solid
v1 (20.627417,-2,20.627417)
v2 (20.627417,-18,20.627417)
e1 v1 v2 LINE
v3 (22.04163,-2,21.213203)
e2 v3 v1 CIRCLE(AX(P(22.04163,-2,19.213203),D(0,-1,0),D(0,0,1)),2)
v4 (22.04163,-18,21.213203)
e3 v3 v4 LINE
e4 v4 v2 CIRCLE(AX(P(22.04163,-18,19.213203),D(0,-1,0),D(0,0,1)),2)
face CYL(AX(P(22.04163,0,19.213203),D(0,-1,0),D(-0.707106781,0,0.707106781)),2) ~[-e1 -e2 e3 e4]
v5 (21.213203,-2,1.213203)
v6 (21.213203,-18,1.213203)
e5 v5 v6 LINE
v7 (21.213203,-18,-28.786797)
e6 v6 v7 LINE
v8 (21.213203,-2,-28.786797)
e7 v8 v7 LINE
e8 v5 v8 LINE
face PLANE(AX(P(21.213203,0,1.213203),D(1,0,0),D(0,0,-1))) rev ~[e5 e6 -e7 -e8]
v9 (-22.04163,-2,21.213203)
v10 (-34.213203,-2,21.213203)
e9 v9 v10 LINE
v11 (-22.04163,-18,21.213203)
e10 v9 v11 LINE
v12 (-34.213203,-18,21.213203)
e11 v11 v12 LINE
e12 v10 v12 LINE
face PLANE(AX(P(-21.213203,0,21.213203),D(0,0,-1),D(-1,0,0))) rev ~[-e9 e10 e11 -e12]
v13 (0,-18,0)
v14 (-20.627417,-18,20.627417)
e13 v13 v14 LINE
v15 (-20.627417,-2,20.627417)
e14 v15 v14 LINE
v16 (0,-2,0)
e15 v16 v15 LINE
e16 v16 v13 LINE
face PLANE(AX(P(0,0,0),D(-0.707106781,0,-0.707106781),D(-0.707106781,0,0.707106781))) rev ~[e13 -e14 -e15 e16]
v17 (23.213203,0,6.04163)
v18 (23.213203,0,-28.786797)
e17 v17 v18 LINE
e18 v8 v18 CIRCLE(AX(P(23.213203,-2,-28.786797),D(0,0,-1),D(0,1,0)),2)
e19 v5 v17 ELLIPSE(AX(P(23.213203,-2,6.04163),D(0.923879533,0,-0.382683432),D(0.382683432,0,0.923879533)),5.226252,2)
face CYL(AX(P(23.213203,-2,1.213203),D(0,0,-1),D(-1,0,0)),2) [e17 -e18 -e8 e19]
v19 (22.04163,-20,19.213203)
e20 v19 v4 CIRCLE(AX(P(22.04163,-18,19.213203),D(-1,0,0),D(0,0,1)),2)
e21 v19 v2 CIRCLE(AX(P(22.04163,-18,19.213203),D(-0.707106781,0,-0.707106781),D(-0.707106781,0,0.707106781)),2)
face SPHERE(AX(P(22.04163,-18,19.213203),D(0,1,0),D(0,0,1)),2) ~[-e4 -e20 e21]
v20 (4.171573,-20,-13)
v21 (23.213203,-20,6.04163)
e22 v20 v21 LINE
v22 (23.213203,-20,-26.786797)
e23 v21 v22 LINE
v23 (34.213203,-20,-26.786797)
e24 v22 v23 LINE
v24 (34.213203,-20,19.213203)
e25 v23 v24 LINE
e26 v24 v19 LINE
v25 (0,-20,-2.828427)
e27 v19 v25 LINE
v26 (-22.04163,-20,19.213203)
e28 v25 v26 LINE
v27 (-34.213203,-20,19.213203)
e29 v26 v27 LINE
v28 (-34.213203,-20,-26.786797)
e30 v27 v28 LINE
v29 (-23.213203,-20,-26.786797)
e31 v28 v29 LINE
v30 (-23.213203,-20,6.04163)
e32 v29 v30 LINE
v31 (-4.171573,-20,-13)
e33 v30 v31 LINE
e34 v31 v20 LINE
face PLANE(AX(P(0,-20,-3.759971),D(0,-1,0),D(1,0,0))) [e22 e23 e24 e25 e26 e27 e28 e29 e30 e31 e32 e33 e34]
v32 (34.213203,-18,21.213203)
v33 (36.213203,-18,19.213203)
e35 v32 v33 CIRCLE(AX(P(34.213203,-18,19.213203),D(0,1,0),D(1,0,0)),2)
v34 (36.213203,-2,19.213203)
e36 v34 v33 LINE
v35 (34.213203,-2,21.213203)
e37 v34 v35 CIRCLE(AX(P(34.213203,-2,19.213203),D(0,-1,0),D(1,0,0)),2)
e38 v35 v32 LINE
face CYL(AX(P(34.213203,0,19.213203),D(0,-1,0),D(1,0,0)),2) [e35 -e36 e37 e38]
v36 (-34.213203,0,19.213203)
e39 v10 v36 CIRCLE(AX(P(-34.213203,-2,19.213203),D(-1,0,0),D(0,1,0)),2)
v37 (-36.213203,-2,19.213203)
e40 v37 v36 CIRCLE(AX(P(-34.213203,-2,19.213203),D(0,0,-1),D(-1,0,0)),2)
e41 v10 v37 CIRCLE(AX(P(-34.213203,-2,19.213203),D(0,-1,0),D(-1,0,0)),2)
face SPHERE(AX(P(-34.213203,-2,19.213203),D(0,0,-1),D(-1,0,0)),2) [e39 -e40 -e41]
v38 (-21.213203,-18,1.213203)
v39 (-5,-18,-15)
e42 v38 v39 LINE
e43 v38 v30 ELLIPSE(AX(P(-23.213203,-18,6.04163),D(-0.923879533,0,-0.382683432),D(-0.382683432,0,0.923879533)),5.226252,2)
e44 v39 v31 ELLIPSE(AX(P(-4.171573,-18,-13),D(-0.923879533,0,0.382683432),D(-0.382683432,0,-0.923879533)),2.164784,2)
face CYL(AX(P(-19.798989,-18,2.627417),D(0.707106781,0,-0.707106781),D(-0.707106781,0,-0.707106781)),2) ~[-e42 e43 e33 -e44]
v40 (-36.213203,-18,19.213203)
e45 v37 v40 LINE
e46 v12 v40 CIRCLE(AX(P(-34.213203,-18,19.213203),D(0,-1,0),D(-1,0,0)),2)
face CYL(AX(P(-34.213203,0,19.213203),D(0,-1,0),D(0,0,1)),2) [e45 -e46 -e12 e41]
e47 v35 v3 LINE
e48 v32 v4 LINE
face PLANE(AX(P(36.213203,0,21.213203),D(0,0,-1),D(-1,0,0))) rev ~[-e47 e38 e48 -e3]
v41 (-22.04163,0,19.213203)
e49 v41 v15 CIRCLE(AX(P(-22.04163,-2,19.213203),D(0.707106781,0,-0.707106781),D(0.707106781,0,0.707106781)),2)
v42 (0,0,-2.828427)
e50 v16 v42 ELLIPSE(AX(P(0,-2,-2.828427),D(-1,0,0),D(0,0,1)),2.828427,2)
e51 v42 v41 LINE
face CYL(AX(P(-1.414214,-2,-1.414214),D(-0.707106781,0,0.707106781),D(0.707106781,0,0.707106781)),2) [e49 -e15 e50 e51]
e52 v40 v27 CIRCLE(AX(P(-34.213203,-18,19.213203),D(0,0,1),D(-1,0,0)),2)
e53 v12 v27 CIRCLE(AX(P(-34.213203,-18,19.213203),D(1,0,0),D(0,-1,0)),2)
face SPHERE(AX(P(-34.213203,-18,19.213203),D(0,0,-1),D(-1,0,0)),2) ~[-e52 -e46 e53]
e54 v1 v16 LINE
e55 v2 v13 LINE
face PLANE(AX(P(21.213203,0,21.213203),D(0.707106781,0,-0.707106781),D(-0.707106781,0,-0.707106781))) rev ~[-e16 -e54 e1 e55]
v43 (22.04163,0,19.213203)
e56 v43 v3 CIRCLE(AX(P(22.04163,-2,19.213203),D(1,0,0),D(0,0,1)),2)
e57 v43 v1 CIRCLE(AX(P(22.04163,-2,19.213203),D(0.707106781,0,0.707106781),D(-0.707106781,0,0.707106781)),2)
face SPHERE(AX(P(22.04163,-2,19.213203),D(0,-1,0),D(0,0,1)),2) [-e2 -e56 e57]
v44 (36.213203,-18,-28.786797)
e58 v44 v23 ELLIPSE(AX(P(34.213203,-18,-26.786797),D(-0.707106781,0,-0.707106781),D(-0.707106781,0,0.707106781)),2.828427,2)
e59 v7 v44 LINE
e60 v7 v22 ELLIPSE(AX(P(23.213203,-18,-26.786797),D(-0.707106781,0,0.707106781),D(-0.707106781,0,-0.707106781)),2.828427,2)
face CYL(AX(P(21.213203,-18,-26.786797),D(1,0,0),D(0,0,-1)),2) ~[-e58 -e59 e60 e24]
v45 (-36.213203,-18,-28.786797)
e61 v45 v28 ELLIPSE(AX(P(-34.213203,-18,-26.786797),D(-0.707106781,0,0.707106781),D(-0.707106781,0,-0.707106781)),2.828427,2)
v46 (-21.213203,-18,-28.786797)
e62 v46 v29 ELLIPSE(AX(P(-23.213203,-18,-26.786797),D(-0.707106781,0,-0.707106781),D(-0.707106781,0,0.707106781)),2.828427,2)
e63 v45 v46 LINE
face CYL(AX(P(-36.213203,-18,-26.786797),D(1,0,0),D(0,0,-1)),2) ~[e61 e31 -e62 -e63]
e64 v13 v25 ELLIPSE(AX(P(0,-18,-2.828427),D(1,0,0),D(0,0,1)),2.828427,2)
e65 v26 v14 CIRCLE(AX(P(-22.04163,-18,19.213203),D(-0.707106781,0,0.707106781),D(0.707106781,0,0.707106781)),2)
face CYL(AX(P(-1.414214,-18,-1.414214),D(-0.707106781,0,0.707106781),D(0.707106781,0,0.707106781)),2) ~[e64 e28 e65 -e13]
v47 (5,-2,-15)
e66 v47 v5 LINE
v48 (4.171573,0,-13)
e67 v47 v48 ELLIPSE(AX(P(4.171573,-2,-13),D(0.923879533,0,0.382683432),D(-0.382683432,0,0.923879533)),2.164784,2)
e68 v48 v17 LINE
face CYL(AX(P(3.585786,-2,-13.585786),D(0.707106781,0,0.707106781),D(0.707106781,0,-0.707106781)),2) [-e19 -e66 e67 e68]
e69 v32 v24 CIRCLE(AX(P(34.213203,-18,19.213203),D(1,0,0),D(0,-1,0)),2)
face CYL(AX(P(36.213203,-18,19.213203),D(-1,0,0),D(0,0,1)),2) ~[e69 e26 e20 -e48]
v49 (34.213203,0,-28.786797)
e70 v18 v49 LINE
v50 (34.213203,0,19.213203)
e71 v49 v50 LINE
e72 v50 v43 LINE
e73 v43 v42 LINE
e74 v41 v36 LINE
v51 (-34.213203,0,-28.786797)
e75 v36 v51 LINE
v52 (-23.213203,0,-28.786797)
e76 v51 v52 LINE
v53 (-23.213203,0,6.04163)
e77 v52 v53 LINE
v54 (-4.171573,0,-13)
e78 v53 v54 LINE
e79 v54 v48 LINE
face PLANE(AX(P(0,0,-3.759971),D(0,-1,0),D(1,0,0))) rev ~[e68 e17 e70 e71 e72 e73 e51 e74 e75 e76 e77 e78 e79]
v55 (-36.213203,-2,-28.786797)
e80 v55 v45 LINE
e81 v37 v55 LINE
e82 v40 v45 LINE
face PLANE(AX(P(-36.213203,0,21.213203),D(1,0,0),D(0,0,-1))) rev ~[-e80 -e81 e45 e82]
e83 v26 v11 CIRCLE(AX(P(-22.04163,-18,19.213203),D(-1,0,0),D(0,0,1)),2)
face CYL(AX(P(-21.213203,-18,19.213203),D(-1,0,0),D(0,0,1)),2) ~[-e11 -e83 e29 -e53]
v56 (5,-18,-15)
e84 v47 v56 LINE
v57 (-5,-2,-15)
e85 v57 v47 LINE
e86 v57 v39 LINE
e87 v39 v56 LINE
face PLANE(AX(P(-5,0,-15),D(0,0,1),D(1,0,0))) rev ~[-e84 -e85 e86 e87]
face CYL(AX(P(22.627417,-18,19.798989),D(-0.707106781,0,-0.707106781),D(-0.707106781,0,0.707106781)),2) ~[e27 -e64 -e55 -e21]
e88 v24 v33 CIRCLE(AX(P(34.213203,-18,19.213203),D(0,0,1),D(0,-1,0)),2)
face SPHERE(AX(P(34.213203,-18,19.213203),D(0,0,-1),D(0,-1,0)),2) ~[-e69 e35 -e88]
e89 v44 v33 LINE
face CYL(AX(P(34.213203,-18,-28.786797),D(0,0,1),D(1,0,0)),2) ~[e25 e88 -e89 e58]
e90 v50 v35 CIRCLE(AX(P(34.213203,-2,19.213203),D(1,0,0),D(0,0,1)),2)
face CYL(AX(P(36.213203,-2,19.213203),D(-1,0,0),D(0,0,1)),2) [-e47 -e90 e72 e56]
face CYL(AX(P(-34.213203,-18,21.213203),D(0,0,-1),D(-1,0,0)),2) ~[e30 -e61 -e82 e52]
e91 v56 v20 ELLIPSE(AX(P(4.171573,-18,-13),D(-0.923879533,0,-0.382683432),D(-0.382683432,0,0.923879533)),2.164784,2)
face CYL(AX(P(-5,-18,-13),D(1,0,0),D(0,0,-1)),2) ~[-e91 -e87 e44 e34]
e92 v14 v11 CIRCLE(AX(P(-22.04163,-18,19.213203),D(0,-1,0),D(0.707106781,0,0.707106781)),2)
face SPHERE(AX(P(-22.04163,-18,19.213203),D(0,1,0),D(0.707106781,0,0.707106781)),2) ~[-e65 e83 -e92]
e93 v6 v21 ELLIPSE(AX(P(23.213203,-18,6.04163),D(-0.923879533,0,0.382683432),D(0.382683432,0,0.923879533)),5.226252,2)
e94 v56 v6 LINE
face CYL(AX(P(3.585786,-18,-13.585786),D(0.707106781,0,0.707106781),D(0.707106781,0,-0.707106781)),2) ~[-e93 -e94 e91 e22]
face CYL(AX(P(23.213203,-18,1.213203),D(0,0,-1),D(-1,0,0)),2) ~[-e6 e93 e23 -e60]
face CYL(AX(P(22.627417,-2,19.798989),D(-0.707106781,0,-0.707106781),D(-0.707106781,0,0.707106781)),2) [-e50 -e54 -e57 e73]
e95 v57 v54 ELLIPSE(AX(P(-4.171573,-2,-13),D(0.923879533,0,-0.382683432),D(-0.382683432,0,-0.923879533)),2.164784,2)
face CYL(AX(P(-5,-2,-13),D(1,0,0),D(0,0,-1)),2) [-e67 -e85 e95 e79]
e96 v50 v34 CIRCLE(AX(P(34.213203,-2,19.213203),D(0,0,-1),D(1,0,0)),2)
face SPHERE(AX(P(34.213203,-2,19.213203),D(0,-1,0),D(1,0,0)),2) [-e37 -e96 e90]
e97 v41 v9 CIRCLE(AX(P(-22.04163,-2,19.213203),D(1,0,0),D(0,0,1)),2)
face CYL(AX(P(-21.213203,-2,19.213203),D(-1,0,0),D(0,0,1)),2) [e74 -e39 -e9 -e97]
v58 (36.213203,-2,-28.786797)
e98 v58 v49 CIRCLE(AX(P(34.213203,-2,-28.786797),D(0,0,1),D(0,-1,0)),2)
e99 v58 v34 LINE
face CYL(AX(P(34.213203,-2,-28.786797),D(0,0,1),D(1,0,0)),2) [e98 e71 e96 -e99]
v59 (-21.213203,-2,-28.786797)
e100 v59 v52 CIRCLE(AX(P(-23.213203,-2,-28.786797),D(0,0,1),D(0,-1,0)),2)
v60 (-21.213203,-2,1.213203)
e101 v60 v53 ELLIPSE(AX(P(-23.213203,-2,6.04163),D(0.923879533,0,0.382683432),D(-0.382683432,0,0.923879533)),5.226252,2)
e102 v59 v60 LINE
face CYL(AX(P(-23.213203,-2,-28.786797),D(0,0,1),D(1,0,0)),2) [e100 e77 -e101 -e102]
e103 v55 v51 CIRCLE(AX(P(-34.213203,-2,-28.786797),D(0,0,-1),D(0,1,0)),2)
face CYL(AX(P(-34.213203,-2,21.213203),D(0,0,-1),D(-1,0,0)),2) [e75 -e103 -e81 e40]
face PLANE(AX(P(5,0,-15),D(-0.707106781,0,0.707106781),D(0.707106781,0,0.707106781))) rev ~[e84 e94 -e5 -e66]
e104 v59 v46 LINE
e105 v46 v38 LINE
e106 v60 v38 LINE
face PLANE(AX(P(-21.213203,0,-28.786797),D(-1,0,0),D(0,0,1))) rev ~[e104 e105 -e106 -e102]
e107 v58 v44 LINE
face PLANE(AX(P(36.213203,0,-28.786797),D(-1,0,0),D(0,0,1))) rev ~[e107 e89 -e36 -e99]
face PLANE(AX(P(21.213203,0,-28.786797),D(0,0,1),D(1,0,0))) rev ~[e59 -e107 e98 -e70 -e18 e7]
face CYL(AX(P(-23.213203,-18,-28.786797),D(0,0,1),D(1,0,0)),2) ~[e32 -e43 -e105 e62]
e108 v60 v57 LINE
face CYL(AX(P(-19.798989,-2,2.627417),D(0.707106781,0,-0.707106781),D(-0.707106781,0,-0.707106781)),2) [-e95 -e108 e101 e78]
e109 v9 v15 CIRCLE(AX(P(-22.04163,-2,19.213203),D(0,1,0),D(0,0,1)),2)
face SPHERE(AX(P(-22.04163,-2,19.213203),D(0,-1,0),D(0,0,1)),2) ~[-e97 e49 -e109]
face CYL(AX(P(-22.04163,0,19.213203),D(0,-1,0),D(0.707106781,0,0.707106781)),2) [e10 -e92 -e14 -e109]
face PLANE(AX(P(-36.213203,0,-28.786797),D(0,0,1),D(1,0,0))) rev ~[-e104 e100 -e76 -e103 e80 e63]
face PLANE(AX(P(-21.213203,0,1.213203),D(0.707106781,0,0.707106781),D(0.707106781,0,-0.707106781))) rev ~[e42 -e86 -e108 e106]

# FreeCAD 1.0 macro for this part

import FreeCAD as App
import Part
import Sketcher


def edges_at(feature, points):
    """Names of the edges that pass closest to the given points."""
    edges = feature.Shape.Edges
    near = lambda p: min(range(len(edges)), key=lambda i: edges[i].distToShape(Part.Vertex(*p))[0])
    return sorted({f"Edge{near(p) + 1}" for p in points})

doc = App.newDocument("Part")
body = doc.addObject("PartDesign::Body", "Body")

sketch1 = body.newObject("Sketcher::SketchObject", "Sketch")
sketch1.AttachmentSupport = (doc.getObject("XZ_Plane"), [""])
sketch1.MapMode = "FlatFace"
sketch1.addGeometry([
    Part.LineSegment(App.Vector(21, 21, 0), App.Vector(0, 0, 0)),
    Part.LineSegment(App.Vector(0, 0, 0), App.Vector(-21, 21, 0)),
    Part.LineSegment(App.Vector(-21, 21, 0), App.Vector(-36, 21, 0)),
    Part.LineSegment(App.Vector(-36, 21, 0), App.Vector(-36, -29, 0)),
    Part.LineSegment(App.Vector(-36, -29, 0), App.Vector(-21, -29, 0)),
    Part.LineSegment(App.Vector(-21, -29, 0), App.Vector(-21, 1, 0)),
    Part.LineSegment(App.Vector(-21, 1, 0), App.Vector(-5, -15, 0)),
    Part.LineSegment(App.Vector(-5, -15, 0), App.Vector(5, -15, 0)),
    Part.LineSegment(App.Vector(5, -15, 0), App.Vector(21, 1, 0)),
    Part.LineSegment(App.Vector(21, 1, 0), App.Vector(21, -29, 0)),
    Part.LineSegment(App.Vector(21, -29, 0), App.Vector(36, -29, 0)),
    Part.LineSegment(App.Vector(36, -29, 0), App.Vector(36, 21, 0)),
    Part.LineSegment(App.Vector(36, 21, 0), App.Vector(21, 21, 0)),
], False)
sketch1.addConstraint([
    Sketcher.Constraint("Coincident", 0, 2, 1, 1),
    Sketcher.Constraint("Coincident", 1, 2, 2, 1),
    Sketcher.Constraint("Coincident", 2, 2, 3, 1),
    Sketcher.Constraint("Coincident", 3, 2, 4, 1),
    Sketcher.Constraint("Coincident", 4, 2, 5, 1),
    Sketcher.Constraint("Coincident", 5, 2, 6, 1),
    Sketcher.Constraint("Coincident", 6, 2, 7, 1),
    Sketcher.Constraint("Coincident", 7, 2, 8, 1),
    Sketcher.Constraint("Coincident", 8, 2, 9, 1),
    Sketcher.Constraint("Coincident", 9, 2, 10, 1),
    Sketcher.Constraint("Coincident", 10, 2, 11, 1),
    Sketcher.Constraint("Coincident", 11, 2, 12, 1),
    Sketcher.Constraint("Coincident", 12, 2, 0, 1),
    Sketcher.Constraint("Horizontal", 2),
    Sketcher.Constraint("Vertical", 3),
    Sketcher.Constraint("Horizontal", 4),
    Sketcher.Constraint("Vertical", 5),
    Sketcher.Constraint("Horizontal", 7),
    Sketcher.Constraint("Vertical", 9),
    Sketcher.Constraint("Horizontal", 10),
    Sketcher.Constraint("Vertical", 11),
    Sketcher.Constraint("Horizontal", 12),
    Sketcher.Constraint("Coincident", 0, 2, -1, 1),
    Sketcher.Constraint("Symmetric", 5, 2, 8, 2, -2),
    Sketcher.Constraint("Symmetric", 3, 2, 10, 2, -2),
    Sketcher.Constraint("Symmetric", 1, 2, 12, 2, -2),
    Sketcher.Constraint("Perpendicular", 0, 1),
    Sketcher.Constraint("Parallel", 1, 6),
    Sketcher.Constraint("Perpendicular", 6, 8),
    Sketcher.Constraint("Vertical", 1, 2, 4, 2),
    Sketcher.Constraint("DistanceX", 2, 2, 2, 1, 15.0),
    Sketcher.Constraint("DistanceX", 7, 1, 7, 2, 10.0),
    Sketcher.Constraint("DistanceY", 3, 2, 3, 1, 50.0),
    Sketcher.Constraint("DistanceY", 5, 1, 5, 2, 30.0),
    Sketcher.Constraint("Distance", 0, 29.999999),
])
pad1 = body.newObject("PartDesign::Pad", "Pad")
pad1.Profile = sketch1
pad1.Length = 20
doc.recompute()

fillet = body.newObject("PartDesign::Fillet", "Fillet")
fillet.Base = (pad1, edges_at(pad1, [
    (-36.213, -20, -3.787),
    (36.213, -20, -3.787),
    (28.713, -20, 21.213),
    (36.213, -10, 21.213),
    (36.213, 0, -3.787),
    (28.713, 0, 21.213),
    (-36.213, 0, -3.787),
    (-36.213, -10, 21.213),
    (-28.713, 0, 21.213),
    (-28.713, -20, 21.213),
    (-10.607, 0, 10.607),
    (-21.213, -10, 21.213),
    (-10.607, -20, 10.607),
    (10.607, -20, 10.607),
    (10.607, 0, 10.607),
    (21.213, -10, 21.213),
    (-21.213, -20, -13.787),
    (-21.213, 0, -13.787),
    (-13.107, -20, -6.893),
    (13.107, -20, -6.893),
    (21.213, -20, -13.787),
    (13.107, 0, -6.893),
    (21.213, 0, -13.787),
    (-13.107, 0, -6.893),
    (0, 0, -15),
    (0, -20, -15),
    (-28.713, -20, -28.787),
    (28.713, -20, -28.787),
]))
fillet.Radius = 2

doc.recompute()
